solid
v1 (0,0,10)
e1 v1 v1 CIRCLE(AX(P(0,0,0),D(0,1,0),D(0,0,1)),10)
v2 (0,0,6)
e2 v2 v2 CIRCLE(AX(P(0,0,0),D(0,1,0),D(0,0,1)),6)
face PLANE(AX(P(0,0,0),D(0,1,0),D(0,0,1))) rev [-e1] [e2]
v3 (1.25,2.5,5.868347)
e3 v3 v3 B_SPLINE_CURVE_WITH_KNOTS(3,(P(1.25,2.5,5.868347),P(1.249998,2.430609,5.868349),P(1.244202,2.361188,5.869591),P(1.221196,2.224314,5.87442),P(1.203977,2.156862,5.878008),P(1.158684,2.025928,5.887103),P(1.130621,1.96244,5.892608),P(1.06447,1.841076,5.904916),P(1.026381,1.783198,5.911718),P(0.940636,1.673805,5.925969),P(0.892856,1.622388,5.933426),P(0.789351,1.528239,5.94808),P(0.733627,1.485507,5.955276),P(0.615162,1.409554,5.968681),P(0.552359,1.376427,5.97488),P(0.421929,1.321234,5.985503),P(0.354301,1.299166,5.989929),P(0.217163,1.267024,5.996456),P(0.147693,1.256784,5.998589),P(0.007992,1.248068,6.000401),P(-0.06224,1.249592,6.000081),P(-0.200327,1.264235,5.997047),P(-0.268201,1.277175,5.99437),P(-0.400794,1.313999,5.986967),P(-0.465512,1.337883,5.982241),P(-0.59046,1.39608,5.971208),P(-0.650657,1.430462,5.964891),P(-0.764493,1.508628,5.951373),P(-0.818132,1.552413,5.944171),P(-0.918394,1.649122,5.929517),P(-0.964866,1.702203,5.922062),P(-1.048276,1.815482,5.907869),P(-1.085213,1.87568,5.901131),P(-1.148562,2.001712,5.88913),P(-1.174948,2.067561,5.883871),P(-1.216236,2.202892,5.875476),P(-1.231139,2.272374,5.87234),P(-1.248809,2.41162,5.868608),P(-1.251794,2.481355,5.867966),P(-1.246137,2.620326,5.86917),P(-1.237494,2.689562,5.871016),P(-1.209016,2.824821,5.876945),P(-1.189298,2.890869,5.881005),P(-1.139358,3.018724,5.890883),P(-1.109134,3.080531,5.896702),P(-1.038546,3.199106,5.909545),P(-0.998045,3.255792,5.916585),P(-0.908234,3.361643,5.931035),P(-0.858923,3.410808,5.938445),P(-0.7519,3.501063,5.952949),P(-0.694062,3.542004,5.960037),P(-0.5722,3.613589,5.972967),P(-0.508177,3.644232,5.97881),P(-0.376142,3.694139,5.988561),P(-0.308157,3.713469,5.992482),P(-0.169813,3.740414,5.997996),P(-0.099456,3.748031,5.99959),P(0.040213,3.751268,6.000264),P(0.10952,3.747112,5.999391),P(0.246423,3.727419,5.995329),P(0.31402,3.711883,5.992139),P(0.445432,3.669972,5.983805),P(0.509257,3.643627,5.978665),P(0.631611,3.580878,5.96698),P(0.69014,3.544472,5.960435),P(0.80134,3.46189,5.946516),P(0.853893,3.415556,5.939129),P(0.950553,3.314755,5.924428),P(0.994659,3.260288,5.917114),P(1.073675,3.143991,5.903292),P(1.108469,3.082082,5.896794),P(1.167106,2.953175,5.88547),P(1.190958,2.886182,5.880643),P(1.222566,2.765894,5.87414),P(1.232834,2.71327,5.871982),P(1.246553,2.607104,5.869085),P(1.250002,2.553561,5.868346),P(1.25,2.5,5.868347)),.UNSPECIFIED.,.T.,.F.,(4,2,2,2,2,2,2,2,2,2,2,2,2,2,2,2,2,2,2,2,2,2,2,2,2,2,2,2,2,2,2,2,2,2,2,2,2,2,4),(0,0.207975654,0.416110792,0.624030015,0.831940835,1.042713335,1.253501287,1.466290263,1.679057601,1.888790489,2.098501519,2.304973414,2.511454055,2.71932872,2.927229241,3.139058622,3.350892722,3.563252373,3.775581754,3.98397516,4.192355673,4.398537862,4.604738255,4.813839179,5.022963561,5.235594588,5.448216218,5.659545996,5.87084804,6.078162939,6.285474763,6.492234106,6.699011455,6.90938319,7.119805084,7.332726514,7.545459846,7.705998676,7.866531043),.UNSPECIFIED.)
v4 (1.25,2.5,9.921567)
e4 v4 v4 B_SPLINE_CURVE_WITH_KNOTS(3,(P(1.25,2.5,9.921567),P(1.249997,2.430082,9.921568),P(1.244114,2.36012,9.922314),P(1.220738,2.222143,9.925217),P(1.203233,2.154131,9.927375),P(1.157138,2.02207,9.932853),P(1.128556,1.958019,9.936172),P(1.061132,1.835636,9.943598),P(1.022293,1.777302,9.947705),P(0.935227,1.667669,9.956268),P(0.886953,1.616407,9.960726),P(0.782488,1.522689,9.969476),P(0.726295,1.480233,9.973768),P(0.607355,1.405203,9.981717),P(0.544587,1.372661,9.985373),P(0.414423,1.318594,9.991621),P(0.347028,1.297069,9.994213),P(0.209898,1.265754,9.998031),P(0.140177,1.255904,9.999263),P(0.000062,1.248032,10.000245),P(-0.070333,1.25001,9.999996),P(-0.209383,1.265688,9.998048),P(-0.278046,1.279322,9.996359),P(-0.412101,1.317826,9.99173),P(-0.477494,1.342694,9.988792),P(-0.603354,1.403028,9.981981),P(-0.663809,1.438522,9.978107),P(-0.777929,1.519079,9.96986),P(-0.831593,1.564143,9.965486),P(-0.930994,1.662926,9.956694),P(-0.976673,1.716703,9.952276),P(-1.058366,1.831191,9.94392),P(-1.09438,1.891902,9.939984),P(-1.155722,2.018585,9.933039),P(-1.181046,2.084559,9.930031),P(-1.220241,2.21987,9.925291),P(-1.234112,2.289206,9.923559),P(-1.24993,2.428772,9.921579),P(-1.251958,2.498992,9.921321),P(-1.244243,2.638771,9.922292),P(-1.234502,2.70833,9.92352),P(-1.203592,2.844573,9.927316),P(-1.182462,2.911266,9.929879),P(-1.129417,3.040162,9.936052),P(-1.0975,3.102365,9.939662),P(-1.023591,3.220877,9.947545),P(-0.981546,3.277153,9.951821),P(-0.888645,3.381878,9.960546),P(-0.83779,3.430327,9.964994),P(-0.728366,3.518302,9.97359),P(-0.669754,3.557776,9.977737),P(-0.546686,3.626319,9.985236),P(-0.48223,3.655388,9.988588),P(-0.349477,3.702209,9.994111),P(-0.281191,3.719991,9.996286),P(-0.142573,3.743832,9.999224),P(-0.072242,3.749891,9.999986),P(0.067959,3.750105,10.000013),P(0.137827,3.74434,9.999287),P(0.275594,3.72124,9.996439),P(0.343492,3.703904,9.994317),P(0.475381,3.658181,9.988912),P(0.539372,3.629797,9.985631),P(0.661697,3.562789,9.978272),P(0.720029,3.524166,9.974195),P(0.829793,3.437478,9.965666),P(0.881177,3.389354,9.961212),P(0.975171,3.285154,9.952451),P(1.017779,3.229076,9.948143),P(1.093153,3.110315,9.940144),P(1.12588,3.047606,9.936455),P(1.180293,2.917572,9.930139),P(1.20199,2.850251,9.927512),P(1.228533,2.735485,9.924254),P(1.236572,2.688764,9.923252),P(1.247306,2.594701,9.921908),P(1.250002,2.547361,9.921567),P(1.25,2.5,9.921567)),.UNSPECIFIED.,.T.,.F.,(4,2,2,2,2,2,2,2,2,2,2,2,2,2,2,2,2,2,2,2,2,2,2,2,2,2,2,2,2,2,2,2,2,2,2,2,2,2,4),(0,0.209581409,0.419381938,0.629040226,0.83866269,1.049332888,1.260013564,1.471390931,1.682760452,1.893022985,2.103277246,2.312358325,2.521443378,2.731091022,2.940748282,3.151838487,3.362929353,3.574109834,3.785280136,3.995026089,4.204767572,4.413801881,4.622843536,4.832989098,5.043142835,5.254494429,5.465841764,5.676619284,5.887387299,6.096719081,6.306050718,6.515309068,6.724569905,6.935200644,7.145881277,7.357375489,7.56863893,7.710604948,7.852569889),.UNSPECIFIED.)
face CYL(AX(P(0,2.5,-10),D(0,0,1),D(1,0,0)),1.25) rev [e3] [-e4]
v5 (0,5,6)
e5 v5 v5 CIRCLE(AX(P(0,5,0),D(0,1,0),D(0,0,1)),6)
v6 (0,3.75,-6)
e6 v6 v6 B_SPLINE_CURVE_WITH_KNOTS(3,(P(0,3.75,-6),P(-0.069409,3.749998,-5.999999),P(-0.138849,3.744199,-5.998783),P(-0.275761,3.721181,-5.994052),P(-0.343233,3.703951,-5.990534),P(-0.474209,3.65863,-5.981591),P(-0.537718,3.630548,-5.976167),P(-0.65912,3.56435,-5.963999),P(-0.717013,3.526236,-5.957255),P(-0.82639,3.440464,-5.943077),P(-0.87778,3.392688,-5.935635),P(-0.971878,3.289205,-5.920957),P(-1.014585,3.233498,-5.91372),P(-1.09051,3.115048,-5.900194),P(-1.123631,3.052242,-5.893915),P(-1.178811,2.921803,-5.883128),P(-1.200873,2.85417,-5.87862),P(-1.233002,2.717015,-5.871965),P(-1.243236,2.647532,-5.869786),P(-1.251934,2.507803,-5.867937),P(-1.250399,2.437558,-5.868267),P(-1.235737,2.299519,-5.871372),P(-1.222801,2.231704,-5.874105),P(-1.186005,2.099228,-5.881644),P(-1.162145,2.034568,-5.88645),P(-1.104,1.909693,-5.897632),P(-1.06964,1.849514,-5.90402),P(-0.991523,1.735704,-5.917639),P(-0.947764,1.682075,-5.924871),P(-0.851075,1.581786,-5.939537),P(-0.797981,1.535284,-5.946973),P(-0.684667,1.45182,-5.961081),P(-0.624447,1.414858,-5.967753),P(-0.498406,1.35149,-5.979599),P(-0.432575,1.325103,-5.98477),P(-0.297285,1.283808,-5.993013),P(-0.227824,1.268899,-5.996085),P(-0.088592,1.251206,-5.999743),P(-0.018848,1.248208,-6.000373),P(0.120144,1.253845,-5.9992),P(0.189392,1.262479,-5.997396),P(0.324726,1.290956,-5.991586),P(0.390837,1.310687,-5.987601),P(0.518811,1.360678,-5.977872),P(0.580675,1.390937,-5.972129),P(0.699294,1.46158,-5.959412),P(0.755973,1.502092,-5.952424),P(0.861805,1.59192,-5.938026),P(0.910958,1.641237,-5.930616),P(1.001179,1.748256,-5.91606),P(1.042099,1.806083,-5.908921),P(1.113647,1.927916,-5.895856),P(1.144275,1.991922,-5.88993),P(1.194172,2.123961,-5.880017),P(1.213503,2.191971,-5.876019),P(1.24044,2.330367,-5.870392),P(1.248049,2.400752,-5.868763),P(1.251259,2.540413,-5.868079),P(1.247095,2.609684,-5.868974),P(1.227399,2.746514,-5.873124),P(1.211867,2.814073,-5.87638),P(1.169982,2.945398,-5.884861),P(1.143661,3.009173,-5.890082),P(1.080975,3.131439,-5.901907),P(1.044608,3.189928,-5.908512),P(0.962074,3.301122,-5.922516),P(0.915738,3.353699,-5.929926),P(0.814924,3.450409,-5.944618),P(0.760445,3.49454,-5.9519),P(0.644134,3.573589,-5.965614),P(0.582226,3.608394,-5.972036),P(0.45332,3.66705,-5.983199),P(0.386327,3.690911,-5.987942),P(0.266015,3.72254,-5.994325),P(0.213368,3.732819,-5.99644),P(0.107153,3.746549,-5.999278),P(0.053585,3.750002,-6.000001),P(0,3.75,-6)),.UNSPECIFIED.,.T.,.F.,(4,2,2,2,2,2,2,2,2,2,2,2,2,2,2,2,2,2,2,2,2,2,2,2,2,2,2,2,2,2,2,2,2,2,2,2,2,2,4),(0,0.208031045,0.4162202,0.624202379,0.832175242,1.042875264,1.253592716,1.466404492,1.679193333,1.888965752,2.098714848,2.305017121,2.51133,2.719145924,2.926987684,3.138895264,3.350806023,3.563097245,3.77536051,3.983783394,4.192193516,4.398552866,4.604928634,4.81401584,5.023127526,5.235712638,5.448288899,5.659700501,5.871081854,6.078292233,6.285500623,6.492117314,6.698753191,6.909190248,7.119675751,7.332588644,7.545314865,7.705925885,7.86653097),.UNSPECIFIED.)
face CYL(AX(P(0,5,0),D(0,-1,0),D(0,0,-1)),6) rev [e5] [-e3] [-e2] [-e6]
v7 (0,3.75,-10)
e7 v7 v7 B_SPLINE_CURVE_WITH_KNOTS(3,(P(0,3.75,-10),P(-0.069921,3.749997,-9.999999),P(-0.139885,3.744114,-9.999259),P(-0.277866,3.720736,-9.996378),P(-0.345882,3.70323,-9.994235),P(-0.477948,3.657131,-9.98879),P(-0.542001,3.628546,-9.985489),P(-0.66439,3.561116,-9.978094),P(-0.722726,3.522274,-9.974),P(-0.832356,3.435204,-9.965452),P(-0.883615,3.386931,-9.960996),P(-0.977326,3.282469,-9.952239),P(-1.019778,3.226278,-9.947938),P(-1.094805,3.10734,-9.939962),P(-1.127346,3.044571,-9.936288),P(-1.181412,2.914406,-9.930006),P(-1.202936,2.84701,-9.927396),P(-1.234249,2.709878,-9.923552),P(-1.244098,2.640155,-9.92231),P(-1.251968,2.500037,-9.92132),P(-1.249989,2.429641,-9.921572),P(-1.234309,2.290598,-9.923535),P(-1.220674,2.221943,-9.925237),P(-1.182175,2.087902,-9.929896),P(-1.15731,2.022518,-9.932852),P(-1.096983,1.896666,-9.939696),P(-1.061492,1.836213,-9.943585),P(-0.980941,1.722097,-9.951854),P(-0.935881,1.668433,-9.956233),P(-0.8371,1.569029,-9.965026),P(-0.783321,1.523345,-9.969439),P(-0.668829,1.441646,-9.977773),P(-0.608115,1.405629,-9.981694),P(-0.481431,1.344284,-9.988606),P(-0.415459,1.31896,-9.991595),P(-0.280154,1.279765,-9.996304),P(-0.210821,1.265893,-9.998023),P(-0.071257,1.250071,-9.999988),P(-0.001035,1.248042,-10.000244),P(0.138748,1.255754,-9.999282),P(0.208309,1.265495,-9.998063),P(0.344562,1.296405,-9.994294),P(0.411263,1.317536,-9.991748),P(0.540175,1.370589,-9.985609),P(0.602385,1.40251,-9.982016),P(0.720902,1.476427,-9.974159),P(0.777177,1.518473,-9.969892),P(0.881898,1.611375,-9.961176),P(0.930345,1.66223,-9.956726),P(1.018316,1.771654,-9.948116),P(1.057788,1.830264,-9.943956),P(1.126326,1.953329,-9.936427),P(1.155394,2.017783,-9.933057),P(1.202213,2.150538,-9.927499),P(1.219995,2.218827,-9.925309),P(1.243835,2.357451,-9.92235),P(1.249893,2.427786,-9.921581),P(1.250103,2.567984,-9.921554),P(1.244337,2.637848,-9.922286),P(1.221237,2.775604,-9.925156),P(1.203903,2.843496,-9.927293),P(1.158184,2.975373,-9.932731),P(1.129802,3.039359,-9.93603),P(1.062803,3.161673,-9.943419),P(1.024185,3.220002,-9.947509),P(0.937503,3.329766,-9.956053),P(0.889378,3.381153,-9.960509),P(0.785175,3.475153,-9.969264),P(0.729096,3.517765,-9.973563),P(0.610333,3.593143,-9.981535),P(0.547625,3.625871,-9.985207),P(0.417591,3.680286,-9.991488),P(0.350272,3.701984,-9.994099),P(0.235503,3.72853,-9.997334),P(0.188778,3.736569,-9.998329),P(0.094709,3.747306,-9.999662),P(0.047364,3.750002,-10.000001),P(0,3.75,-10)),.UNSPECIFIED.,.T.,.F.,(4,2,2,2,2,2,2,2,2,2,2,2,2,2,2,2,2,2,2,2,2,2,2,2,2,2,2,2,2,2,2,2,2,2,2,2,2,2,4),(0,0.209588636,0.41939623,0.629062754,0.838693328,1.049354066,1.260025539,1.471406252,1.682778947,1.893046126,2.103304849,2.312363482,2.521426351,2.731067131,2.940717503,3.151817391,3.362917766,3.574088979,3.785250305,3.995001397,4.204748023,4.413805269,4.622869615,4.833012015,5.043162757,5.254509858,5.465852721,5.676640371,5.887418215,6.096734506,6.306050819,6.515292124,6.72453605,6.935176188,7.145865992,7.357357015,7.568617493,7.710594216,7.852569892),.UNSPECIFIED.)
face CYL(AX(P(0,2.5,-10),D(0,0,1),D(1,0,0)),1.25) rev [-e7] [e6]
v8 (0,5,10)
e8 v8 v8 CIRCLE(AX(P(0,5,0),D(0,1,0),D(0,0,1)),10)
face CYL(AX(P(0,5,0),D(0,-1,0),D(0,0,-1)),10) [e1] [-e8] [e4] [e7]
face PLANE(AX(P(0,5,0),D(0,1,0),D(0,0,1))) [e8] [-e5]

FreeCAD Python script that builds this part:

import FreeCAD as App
import Part
import Sketcher
Q = App.Units.Quantity

doc = App.newDocument("Part")
body = doc.addObject("PartDesign::Body", "Body")

# Sketch on XZ plane
sketch1 = doc.addObject("Sketcher::SketchObject", "Sketch")
body.addObject(sketch1)
sketch1.AttachmentSupport = (doc.XZ_Plane, [""])
sketch1.MapMode = "FlatFace"
sketch1.addGeometry([
    Part.Circle(App.Vector(0, 0, 0), App.Vector(0, 0, 1), 10),
    Part.Circle(App.Vector(0, 0, 0), App.Vector(0, 0, 1), 6),
], False)
sketch1.addConstraint([
    Sketcher.Constraint("Coincident", 0, 3, -1, 1),
    Sketcher.Constraint("Coincident", 1, 3, -1, 1),
    Sketcher.Constraint("Diameter", 0, Q("20 mm")),
    Sketcher.Constraint("Diameter", 1, Q("12 mm")),
])
pad1 = doc.addObject("PartDesign::Pad", "Pad")
body.addObject(pad1)
pad1.Profile = sketch1
pad1.Length = 5
pad1.Reversed = True

# Sketch on XY plane
sketch2 = doc.addObject("Sketcher::SketchObject", "Sketch001")
body.addObject(sketch2)
sketch2.AttachmentSupport = (doc.XY_Plane, [""])
sketch2.MapMode = "FlatFace"
sketch2.addGeometry(Part.Circle(App.Vector(0, 2.5, 0), App.Vector(0, 0, 1), 1.2), False)
sketch2.addConstraint([
    Sketcher.Constraint("PointOnObject", 0, 3, -2),
    Sketcher.Constraint("Diameter", 0, Q("2.5 mm")),
    Sketcher.Constraint("DistanceY", -1, 1, 0, 3, Q("2.5 mm")),
])
pocket1 = doc.addObject("PartDesign::Pocket", "Pocket")
body.addObject(pocket1)
pocket1.Profile = sketch2
pocket1.Type = "ThroughAll"
pocket1.Midplane = True

doc.recompute()
